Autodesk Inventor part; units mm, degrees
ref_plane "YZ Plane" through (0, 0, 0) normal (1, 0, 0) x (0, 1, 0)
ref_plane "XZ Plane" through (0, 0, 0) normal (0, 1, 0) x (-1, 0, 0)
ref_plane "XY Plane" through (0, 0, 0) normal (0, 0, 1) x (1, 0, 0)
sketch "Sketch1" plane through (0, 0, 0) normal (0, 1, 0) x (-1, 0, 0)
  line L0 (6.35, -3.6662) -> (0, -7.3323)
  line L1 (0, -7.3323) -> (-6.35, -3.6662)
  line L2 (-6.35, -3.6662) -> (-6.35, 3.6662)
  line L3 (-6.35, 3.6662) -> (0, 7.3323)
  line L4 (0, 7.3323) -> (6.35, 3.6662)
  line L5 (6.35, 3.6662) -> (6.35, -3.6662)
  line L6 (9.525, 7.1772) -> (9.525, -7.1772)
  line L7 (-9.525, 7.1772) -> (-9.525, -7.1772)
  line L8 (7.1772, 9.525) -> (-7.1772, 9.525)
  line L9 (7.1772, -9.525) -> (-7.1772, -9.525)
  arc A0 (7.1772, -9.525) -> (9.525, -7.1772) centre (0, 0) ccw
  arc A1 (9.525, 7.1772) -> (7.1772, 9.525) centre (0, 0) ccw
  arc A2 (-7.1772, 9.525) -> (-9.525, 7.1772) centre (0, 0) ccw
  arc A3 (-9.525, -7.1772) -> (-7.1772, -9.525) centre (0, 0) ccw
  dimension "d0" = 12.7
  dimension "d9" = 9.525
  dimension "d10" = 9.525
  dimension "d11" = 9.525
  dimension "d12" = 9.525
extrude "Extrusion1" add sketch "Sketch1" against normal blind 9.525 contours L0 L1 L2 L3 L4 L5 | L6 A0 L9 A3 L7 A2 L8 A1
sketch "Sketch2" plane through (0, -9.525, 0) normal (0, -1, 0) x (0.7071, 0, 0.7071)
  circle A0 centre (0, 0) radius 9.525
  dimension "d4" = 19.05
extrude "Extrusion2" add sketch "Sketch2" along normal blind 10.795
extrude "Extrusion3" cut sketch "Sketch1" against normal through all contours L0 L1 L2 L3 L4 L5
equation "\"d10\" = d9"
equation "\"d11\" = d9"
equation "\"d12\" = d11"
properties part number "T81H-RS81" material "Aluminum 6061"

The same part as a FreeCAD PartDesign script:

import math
import FreeCAD as App
import Part
import Sketcher
from FreeCAD import Vector
Q = App.Units.Quantity


def add_polygon(sketch, points):
    """Adds a closed chain of lines whose ends are joined by coincident constraints."""
    first, n = sketch.GeometryCount, len(points)
    for a, b in zip(points, points[1:] + points[:1]):
        sketch.addGeometry(Part.LineSegment(App.Vector(*a, 0), App.Vector(*b, 0)), False)
    for i in range(n):
        sketch.addConstraint(Sketcher.Constraint("Coincident", first + i, 2, first + (i + 1) % n, 1))

doc = App.newDocument("Part")
body = doc.addObject("PartDesign::Body", "Body")

sketch1 = body.newObject("Sketcher::SketchObject", "Sketch")
sketch1.AttachmentSupport = (doc.getObject("XZ_Plane"), [""])
sketch1.MapMode = "FlatFace"
sketch1.addGeometry([
    Part.LineSegment(Vector(-9.5, -7.2, 0), Vector(-9.5, 7.2, 0)),
    Part.ArcOfCircle(Part.Circle(Vector(0, 0, 0), Vector(0, 0, 1), 11.9), math.radians(127), math.radians(143)),
    Part.LineSegment(Vector(-7.2, 9.5, 0), Vector(7.2, 9.5, 0)),
    Part.ArcOfCircle(Part.Circle(Vector(0, 0, 0), Vector(0, 0, 1), 11.9), math.radians(37), math.radians(53)),
    Part.LineSegment(Vector(9.5, 7.2, 0), Vector(9.5, -7.2, 0)),
    Part.ArcOfCircle(Part.Circle(Vector(0, 0, 0), Vector(0, 0, 1), 11.9), math.radians(-53), math.radians(-37)),
    Part.LineSegment(Vector(7.2, -9.5, 0), Vector(-7.2, -9.5, 0)),
    Part.ArcOfCircle(Part.Circle(Vector(0, 0, 0), Vector(0, 0, 1), 11.9), math.radians(-143), math.radians(-127)),
], False)
sketch1.addConstraint([
    Sketcher.Constraint("Coincident", 0, 2, 1, 2),
    Sketcher.Constraint("Coincident", 1, 1, 2, 1),
    Sketcher.Constraint("Coincident", 2, 2, 3, 2),
    Sketcher.Constraint("Coincident", 3, 1, 4, 1),
    Sketcher.Constraint("Coincident", 4, 2, 5, 2),
    Sketcher.Constraint("Coincident", 5, 1, 6, 1),
    Sketcher.Constraint("Coincident", 6, 2, 7, 2),
    Sketcher.Constraint("Coincident", 7, 1, 0, 1),
    Sketcher.Constraint("Vertical", 0),
    Sketcher.Constraint("Horizontal", 2),
    Sketcher.Constraint("Vertical", 4),
    Sketcher.Constraint("Horizontal", 6),
    Sketcher.Constraint("Coincident", 1, 3, -1, 1),
    Sketcher.Constraint("Coincident", 3, 3, -1, 1),
    Sketcher.Constraint("Coincident", 5, 3, -1, 1),
    Sketcher.Constraint("Coincident", 7, 3, -1, 1),
    Sketcher.Constraint("Equal", 1, 3),
    Sketcher.Constraint("Equal", 3, 5),
    Sketcher.Constraint("Equal", 5, 7),
    Sketcher.Constraint("Horizontal", 0, 2, 3, 1),
    Sketcher.Constraint("Vertical", 2, 2, 5, 1),
    Sketcher.Constraint("Equal", 6, 0),
    Sketcher.Constraint("DistanceX", 0, 2, -1, 1, Q("0.375 in")),
    Sketcher.Constraint("Radius", 1, 11.9264),
])
pad1 = body.newObject("PartDesign::Pad", "Pad")
pad1.Profile = sketch1
pad1.Length = Q("0.375 in")

sketch2 = body.newObject("Sketcher::SketchObject", "Sketch001")
sketch2.AttachmentSupport = (doc.getObject("XZ_Plane"), [""])
sketch2.MapMode = "FlatFace"
sketch2.AttachmentOffset = App.Placement(Vector(0, 0, 0.375 * 25.4), App.Rotation())
sketch2.addGeometry(Part.Circle(Vector(0, 0, 0), Vector(0, 0, 1), 10), False)
sketch2.addConstraint([
    Sketcher.Constraint("Coincident", 0, 3, -1, 1),
    Sketcher.Constraint("Diameter", 0, Q("0.75 in")),
])
pad2 = body.newObject("PartDesign::Pad", "Pad001")
pad2.Profile = sketch2
pad2.Length = Q("0.425 in")

sketch3 = body.newObject("Sketcher::SketchObject", "Sketch002")
sketch3.AttachmentSupport = (doc.getObject("XZ_Plane"), [""])
sketch3.MapMode = "FlatFace"
add_polygon(sketch3, [(0, -7), (-6, -4), (-6, 4), (0, 7), (6, 4), (6, -4)])
sketch3.addConstraint([
    Sketcher.Constraint("Vertical", 1),
    Sketcher.Constraint("Vertical", 4),
    Sketcher.Constraint("Symmetric", 0, 2, 3, 2, -1, 1),
    Sketcher.Constraint("Symmetric", 2, 2, 5, 2, -1, 1),
    Sketcher.Constraint("PointOnObject", 2, 2, -2),
    Sketcher.Constraint("Parallel", 2, 5),
    Sketcher.Constraint("Horizontal", 1, 2, 3, 2),
    Sketcher.Constraint("DistanceX", 1, 2, 3, 2, Q("0.5 in")),
    Sketcher.Constraint("Angle", 0, Q("150.0005 deg")),
    Sketcher.Constraint("DistanceY", 0, 2, 2, 2, Q("0.433 in")),
])
pocket1 = body.newObject("PartDesign::Pocket", "Pocket")
pocket1.Profile = sketch3
pocket1.Type = "ThroughAll"
pocket1.Reversed = True

doc.recompute()
